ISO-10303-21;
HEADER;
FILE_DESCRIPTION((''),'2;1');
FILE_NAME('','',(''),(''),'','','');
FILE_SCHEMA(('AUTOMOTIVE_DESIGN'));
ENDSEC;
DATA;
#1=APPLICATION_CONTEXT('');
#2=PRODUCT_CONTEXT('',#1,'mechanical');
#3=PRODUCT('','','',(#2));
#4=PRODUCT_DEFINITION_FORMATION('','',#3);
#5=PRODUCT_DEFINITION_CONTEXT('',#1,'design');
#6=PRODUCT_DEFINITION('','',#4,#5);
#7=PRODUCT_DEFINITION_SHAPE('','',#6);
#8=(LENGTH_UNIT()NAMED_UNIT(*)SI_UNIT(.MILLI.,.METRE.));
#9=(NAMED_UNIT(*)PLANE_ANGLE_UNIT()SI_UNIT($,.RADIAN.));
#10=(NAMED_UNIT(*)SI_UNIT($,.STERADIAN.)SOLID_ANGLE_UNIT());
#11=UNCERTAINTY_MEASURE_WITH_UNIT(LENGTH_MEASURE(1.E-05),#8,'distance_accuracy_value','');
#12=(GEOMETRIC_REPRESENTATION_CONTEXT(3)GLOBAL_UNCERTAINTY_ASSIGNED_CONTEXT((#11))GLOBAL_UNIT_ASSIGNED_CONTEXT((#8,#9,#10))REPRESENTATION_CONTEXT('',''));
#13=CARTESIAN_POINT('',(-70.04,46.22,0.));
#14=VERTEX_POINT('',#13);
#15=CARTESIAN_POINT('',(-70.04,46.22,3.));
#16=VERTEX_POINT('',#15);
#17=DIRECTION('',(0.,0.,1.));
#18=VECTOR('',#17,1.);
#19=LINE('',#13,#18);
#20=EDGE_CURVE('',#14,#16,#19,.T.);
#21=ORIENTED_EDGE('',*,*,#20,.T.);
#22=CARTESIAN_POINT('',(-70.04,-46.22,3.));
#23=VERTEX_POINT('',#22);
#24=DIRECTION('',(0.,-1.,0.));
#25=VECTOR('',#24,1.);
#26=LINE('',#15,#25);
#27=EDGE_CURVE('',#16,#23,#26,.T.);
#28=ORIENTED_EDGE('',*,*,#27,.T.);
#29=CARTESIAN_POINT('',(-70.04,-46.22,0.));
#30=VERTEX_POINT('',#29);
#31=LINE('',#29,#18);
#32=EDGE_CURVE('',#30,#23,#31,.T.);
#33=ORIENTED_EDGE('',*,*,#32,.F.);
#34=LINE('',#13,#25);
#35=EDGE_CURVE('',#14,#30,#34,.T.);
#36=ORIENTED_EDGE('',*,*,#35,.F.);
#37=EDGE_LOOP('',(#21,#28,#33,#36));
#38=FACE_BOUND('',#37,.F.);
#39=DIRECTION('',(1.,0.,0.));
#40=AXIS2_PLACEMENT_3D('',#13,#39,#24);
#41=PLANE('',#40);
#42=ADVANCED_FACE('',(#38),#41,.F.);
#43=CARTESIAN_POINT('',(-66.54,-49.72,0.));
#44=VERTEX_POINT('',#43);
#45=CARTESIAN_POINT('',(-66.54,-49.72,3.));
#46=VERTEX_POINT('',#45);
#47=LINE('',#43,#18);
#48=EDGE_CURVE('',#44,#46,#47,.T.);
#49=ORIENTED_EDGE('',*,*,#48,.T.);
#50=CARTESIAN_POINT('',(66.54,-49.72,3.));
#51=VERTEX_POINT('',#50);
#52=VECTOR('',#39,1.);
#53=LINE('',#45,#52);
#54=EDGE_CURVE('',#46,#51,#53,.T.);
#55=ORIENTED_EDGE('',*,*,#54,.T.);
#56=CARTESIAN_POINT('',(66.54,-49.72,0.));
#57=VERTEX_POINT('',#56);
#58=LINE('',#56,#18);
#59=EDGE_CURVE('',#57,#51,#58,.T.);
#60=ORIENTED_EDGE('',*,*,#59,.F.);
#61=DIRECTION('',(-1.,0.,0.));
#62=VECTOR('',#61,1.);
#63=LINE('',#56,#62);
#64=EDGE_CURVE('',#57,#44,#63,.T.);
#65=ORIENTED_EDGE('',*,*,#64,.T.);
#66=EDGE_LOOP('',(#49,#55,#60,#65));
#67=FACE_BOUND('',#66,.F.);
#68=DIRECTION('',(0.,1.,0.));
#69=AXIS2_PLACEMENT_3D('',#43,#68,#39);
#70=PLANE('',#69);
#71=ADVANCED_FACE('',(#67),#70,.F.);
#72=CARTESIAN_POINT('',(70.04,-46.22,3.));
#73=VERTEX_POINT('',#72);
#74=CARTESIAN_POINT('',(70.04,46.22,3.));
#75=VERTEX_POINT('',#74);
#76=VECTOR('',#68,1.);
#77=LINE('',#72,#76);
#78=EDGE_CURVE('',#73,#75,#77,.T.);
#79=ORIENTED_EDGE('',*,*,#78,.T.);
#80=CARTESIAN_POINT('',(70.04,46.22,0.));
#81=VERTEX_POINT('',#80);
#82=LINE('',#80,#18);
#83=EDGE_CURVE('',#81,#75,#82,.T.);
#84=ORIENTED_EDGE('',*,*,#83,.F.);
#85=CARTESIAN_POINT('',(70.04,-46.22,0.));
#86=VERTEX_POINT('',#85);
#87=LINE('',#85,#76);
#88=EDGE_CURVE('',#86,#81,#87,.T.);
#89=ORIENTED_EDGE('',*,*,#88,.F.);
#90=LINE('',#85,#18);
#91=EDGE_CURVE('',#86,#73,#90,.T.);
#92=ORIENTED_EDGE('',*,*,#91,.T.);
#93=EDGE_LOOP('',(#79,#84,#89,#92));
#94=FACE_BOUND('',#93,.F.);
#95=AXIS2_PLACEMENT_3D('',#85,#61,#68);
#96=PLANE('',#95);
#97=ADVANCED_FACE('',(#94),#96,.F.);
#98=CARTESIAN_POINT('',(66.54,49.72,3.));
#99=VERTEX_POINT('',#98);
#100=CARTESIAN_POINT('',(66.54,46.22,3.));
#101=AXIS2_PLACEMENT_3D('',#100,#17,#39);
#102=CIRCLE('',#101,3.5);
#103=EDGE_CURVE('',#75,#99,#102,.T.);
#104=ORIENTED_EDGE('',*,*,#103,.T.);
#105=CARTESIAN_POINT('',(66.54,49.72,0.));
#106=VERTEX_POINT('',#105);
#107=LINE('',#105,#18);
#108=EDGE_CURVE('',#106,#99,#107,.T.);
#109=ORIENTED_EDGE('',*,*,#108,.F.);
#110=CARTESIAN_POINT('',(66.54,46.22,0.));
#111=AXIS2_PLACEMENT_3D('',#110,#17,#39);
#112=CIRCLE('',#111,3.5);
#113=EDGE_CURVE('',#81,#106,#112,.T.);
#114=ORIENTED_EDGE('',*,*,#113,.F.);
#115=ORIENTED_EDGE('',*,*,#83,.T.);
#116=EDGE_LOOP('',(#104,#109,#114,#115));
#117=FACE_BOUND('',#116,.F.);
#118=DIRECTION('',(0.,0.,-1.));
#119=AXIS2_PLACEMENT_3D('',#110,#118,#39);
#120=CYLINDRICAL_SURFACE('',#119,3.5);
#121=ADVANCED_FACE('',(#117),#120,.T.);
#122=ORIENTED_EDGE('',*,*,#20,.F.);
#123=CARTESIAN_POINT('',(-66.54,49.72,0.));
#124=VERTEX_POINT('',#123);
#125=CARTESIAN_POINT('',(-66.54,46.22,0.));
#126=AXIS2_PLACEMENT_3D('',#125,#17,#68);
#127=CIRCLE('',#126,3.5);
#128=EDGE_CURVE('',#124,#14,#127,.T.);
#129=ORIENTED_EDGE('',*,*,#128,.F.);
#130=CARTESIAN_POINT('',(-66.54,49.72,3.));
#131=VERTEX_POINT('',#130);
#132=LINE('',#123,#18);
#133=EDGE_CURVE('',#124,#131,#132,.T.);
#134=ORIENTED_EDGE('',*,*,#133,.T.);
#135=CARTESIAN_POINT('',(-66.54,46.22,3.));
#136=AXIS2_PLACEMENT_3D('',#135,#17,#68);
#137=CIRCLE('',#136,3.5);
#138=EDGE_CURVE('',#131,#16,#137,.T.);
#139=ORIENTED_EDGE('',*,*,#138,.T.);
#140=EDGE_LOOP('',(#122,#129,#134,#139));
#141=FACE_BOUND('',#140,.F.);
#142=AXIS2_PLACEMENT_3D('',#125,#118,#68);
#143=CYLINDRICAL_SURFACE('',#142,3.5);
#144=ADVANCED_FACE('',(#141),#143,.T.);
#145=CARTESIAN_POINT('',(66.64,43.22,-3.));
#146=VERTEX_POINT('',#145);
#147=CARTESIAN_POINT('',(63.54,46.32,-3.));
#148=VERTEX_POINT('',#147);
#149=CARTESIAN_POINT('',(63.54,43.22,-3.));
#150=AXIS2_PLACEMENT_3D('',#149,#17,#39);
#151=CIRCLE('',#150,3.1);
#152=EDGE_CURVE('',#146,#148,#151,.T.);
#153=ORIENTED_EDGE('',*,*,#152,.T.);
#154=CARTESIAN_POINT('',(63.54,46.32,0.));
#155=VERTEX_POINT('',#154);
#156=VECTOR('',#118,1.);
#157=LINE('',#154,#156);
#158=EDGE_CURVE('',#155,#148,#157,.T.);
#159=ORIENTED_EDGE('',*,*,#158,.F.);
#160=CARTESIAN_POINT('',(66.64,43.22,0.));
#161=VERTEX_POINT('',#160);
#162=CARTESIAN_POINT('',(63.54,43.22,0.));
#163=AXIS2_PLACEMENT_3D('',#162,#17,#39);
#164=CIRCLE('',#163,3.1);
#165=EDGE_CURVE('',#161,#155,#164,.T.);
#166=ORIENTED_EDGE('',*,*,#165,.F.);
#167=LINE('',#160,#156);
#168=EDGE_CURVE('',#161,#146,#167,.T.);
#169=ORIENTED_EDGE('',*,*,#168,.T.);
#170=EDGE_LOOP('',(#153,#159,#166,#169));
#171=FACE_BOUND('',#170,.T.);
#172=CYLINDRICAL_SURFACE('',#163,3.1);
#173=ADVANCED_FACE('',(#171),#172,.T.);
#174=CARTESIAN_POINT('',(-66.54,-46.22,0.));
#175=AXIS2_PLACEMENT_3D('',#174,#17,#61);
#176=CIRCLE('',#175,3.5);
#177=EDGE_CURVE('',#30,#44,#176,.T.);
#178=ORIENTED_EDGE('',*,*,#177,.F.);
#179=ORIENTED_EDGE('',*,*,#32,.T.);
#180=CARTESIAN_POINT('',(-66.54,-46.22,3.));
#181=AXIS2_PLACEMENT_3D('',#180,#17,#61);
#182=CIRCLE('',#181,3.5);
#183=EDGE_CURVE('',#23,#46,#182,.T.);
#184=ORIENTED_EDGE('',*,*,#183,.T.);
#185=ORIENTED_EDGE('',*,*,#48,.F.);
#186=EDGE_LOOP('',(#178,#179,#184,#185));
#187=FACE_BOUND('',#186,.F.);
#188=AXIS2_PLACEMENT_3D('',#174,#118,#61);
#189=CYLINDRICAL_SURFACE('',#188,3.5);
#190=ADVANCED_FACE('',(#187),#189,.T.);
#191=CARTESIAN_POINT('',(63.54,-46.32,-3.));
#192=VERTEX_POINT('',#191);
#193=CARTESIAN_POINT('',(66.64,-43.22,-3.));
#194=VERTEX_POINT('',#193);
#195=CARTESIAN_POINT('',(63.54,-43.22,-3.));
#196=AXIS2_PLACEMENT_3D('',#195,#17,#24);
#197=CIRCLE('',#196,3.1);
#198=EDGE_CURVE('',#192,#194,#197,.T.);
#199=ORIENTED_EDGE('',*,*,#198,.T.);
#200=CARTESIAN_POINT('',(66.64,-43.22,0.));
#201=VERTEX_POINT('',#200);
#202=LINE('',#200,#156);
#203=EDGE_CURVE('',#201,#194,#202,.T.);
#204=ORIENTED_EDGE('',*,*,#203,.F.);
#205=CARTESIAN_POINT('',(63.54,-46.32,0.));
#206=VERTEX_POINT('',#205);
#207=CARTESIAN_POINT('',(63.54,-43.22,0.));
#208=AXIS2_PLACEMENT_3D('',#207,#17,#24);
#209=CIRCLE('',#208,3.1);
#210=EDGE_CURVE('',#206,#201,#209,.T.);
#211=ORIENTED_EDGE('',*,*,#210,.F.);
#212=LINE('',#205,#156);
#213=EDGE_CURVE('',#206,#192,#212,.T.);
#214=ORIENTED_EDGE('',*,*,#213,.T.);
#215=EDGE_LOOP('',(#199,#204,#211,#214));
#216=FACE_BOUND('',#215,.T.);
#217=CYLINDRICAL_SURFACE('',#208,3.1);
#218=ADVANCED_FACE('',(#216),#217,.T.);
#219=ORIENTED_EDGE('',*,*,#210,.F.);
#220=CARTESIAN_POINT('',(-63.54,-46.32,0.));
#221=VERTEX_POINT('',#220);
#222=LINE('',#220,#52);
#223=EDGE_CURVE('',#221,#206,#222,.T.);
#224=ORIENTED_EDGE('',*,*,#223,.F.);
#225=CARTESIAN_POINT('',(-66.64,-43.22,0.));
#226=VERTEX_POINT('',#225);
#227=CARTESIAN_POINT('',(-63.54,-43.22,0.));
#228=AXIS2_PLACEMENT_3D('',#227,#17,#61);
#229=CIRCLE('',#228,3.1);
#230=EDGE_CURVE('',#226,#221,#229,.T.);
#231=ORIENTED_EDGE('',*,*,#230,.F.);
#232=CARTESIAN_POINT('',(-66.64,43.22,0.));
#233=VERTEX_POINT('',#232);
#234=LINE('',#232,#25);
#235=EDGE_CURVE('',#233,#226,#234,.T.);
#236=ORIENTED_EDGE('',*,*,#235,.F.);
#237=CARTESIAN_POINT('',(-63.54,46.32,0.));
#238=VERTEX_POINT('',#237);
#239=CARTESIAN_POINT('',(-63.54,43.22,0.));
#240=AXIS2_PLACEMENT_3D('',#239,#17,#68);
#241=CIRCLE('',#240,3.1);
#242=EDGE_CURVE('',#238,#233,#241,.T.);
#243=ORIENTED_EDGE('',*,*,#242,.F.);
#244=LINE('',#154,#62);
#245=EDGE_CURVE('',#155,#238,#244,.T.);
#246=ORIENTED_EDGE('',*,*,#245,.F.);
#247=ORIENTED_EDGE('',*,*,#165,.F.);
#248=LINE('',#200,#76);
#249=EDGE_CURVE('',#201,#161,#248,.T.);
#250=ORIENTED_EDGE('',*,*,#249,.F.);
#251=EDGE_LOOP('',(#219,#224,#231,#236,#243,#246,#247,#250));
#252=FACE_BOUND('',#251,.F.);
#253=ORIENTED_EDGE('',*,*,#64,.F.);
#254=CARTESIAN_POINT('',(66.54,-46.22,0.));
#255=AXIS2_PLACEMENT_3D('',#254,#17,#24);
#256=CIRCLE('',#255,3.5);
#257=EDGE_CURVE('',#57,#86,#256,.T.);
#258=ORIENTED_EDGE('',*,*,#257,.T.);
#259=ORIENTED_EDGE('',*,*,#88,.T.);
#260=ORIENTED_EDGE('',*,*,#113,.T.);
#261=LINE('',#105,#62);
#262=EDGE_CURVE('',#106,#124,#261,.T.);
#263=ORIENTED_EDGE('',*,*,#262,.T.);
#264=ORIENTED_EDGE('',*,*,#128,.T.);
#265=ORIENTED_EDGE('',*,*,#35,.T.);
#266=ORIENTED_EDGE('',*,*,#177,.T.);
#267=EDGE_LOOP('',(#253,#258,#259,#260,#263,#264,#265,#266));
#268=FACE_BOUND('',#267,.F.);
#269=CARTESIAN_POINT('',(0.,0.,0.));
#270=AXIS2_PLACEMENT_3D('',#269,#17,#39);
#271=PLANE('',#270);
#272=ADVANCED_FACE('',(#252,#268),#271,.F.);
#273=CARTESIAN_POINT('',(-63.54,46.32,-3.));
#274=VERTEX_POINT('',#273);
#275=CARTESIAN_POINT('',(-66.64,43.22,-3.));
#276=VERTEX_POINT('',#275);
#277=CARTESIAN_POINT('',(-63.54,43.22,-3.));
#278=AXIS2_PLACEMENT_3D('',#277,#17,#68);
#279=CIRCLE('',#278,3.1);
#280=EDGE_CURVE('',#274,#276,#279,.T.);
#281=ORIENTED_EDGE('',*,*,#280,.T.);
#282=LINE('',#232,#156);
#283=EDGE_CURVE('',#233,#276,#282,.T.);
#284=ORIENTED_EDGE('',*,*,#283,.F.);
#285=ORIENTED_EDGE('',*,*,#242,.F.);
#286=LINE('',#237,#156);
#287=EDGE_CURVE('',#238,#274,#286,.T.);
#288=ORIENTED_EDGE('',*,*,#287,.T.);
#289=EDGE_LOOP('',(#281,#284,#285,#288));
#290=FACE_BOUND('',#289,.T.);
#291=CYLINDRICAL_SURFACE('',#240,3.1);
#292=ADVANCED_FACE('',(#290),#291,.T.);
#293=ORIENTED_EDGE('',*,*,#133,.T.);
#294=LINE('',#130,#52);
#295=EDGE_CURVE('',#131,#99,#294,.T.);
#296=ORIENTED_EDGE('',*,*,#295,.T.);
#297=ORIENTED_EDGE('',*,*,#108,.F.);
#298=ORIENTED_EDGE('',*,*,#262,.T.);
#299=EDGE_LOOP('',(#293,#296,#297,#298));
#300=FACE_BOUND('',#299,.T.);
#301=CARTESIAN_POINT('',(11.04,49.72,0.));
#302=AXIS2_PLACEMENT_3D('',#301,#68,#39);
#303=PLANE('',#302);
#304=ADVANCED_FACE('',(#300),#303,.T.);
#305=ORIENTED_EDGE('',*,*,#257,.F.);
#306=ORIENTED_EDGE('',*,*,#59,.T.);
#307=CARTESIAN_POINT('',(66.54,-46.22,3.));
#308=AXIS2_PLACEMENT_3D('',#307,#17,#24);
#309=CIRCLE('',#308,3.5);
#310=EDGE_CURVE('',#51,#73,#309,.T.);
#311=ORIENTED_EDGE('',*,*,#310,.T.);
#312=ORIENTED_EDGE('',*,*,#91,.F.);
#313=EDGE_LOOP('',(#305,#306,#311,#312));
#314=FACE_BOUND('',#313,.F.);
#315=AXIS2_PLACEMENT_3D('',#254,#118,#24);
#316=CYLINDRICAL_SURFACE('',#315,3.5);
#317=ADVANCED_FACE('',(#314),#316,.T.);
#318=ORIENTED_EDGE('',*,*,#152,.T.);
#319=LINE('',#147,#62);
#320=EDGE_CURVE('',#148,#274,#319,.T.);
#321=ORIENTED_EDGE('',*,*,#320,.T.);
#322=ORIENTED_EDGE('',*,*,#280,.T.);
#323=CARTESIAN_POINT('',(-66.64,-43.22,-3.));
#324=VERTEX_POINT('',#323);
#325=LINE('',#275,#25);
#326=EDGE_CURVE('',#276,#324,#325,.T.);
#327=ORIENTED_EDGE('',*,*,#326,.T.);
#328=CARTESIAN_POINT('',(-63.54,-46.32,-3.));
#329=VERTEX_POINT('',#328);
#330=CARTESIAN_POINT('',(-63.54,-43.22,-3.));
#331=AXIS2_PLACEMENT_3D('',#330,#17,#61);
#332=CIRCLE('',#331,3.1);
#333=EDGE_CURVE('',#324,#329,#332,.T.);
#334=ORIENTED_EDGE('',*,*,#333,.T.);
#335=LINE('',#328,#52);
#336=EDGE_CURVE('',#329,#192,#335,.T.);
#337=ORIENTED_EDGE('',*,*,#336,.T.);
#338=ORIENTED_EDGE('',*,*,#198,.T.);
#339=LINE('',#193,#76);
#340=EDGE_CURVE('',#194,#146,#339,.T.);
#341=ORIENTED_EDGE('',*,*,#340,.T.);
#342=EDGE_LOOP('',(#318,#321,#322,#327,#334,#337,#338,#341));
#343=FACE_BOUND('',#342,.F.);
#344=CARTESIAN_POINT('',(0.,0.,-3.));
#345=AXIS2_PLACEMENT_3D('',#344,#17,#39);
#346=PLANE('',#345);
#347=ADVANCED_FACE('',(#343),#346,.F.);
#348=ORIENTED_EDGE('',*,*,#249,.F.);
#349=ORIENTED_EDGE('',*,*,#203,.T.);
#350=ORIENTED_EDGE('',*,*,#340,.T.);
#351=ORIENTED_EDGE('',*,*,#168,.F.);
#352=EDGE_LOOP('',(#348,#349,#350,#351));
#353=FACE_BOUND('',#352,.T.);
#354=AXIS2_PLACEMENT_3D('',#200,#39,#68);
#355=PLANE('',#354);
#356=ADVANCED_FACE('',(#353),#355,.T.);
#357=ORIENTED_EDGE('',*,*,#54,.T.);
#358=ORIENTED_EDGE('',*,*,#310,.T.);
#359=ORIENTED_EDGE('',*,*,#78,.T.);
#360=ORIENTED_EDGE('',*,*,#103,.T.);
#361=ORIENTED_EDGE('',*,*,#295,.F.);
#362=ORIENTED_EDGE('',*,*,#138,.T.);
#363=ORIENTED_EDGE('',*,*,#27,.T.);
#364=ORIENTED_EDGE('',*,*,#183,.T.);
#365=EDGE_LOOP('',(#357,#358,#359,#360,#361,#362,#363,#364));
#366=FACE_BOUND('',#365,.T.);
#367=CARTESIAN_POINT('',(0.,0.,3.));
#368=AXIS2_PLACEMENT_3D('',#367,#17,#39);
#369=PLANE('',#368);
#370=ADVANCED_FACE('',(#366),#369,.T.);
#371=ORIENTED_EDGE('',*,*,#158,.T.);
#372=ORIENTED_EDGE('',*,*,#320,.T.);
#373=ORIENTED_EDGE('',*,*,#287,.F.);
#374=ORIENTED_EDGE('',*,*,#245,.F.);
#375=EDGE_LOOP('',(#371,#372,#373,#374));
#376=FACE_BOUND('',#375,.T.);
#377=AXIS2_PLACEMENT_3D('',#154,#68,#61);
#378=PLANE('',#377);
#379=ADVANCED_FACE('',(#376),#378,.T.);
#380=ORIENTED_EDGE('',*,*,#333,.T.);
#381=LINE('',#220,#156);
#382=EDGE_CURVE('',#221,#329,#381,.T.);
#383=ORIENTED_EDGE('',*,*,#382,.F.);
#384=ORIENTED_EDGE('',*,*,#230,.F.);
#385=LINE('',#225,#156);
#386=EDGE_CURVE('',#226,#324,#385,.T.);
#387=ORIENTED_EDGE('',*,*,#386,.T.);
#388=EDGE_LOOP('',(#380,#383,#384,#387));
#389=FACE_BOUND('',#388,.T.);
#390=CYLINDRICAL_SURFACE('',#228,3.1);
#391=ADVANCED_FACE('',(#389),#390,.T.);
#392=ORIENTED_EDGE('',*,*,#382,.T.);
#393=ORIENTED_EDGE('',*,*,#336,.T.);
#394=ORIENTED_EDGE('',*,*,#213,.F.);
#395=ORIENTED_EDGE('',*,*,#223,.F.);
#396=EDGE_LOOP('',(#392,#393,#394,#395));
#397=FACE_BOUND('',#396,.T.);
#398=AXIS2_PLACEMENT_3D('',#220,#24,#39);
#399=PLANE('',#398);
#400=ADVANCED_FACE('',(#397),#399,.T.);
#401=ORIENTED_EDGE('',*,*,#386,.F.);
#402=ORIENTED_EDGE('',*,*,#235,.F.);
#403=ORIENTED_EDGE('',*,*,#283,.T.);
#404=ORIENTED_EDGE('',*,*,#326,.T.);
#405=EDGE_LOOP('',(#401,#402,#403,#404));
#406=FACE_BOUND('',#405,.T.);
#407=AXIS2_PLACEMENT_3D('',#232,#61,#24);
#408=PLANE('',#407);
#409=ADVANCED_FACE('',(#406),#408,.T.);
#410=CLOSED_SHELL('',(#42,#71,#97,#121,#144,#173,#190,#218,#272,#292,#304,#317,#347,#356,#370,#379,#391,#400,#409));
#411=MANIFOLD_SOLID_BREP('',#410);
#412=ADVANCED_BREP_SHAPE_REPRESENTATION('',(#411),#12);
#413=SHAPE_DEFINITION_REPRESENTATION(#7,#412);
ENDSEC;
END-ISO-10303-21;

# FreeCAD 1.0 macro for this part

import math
import FreeCAD as App
import Part
import Sketcher
from FreeCAD import Vector

doc = App.newDocument("Part")
body = doc.addObject("PartDesign::Body", "Body")

# Sketch on XY plane
sketch1 = doc.addObject("Sketcher::SketchObject", "Sketch")
body.addObject(sketch1)
sketch1.AttachmentSupport = (doc.XY_Plane, [""])
sketch1.MapMode = "FlatFace"
sketch1.addGeometry(Part.LineSegment(Vector(63.5, 46.3, 0), Vector(-63.5, 46.3, 0)), False)
sketch1.addGeometry(Part.ArcOfCircle(Part.Circle(Vector(-63.5, 43.2, 0), Vector(0, 0, 1), 3.1), math.radians(90), math.radians(180)), False)
sketch1.addGeometry(Part.LineSegment(Vector(-66.6, 43.2, 0), Vector(-66.6, -43.2, 0)), False)
sketch1.addGeometry(Part.ArcOfCircle(Part.Circle(Vector(-63.5, -43.2, 0), Vector(0, 0, 1), 3.1), math.radians(180), math.radians(270)), False)
sketch1.addGeometry(Part.LineSegment(Vector(-63.5, -46.3, 0), Vector(63.5, -46.3, 0)), False)
sketch1.addGeometry(Part.ArcOfCircle(Part.Circle(Vector(63.5, -43.2, 0), Vector(0, 0, 1), 3.1), math.radians(-90), math.radians(0)), False)
sketch1.addGeometry(Part.LineSegment(Vector(66.6, -43.2, 0), Vector(66.6, 43.2, 0)), False)
sketch1.addGeometry(Part.ArcOfCircle(Part.Circle(Vector(63.5, 43.2, 0), Vector(0, 0, 1), 3.1), math.radians(0), math.radians(90)), False)
sketch1.addConstraint(Sketcher.Constraint("Tangent", 0, 2, 1, 1))
sketch1.addConstraint(Sketcher.Constraint("Tangent", 1, 2, 2, 1))
sketch1.addConstraint(Sketcher.Constraint("Tangent", 2, 2, 3, 1))
sketch1.addConstraint(Sketcher.Constraint("Tangent", 3, 2, 4, 1))
sketch1.addConstraint(Sketcher.Constraint("Tangent", 4, 2, 5, 1))
sketch1.addConstraint(Sketcher.Constraint("Tangent", 5, 2, 6, 1))
sketch1.addConstraint(Sketcher.Constraint("Tangent", 6, 2, 7, 1))
sketch1.addConstraint(Sketcher.Constraint("Tangent", 7, 2, 0, 1))
sketch1.addConstraint(Sketcher.Constraint("Horizontal", 0))
sketch1.addConstraint(Sketcher.Constraint("Vertical", 2))
sketch1.addConstraint(Sketcher.Constraint("Horizontal", 4))
sketch1.addConstraint(Sketcher.Constraint("Vertical", 6))
sketch1.addConstraint(Sketcher.Constraint("Equal", 1, 3))
sketch1.addConstraint(Sketcher.Constraint("Equal", 3, 5))
sketch1.addConstraint(Sketcher.Constraint("Equal", 5, 7))
sketch1.addConstraint(Sketcher.Constraint("Symmetric", 1, 3, 5, 3, -1, 1))
sketch1.addConstraint(Sketcher.Constraint("Radius", 1, 3.1))
sketch1.addConstraint(Sketcher.Constraint("DistanceX", 0, 2, 0, 1, 127.08))
sketch1.addConstraint(Sketcher.Constraint("DistanceY", 2, 2, 2, 1, 86.44))
pad1 = doc.addObject("PartDesign::Pad", "Pad")
body.addObject(pad1)
pad1.Profile = sketch1
pad1.Length = 3
pad1.Reversed = True

# Sketch on XY plane
sketch2 = doc.addObject("Sketcher::SketchObject", "Sketch001")
body.addObject(sketch2)
sketch2.AttachmentSupport = (doc.XY_Plane, [""])
sketch2.MapMode = "FlatFace"
sketch2.addGeometry(Part.LineSegment(Vector(66.5, 49.7, 0), Vector(-66.5, 49.7, 0)), False)
sketch2.addGeometry(Part.ArcOfCircle(Part.Circle(Vector(-66.5, 46.2, 0), Vector(0, 0, 1), 3.5), math.radians(90), math.radians(180)), False)
sketch2.addGeometry(Part.LineSegment(Vector(-70, 46.2, 0), Vector(-70, -46.2, 0)), False)
sketch2.addGeometry(Part.ArcOfCircle(Part.Circle(Vector(-66.5, -46.2, 0), Vector(0, 0, 1), 3.5), math.radians(180), math.radians(270)), False)
sketch2.addGeometry(Part.LineSegment(Vector(-66.5, -49.7, 0), Vector(66.5, -49.7, 0)), False)
sketch2.addGeometry(Part.ArcOfCircle(Part.Circle(Vector(66.5, -46.2, 0), Vector(0, 0, 1), 3.5), math.radians(-90), math.radians(0)), False)
sketch2.addGeometry(Part.LineSegment(Vector(70, -46.2, 0), Vector(70, 46.2, 0)), False)
sketch2.addGeometry(Part.ArcOfCircle(Part.Circle(Vector(66.5, 46.2, 0), Vector(0, 0, 1), 3.5), math.radians(0), math.radians(90)), False)
sketch2.addConstraint(Sketcher.Constraint("Tangent", 0, 2, 1, 1))
sketch2.addConstraint(Sketcher.Constraint("Tangent", 1, 2, 2, 1))
sketch2.addConstraint(Sketcher.Constraint("Tangent", 2, 2, 3, 1))
sketch2.addConstraint(Sketcher.Constraint("Tangent", 3, 2, 4, 1))
sketch2.addConstraint(Sketcher.Constraint("Tangent", 4, 2, 5, 1))
sketch2.addConstraint(Sketcher.Constraint("Tangent", 5, 2, 6, 1))
sketch2.addConstraint(Sketcher.Constraint("Tangent", 6, 2, 7, 1))
sketch2.addConstraint(Sketcher.Constraint("Tangent", 7, 2, 0, 1))
sketch2.addConstraint(Sketcher.Constraint("Horizontal", 0))
sketch2.addConstraint(Sketcher.Constraint("Vertical", 2))
sketch2.addConstraint(Sketcher.Constraint("Horizontal", 4))
sketch2.addConstraint(Sketcher.Constraint("Vertical", 6))
sketch2.addConstraint(Sketcher.Constraint("Equal", 1, 3))
sketch2.addConstraint(Sketcher.Constraint("Equal", 3, 5))
sketch2.addConstraint(Sketcher.Constraint("Equal", 5, 7))
sketch2.addConstraint(Sketcher.Constraint("Symmetric", 1, 3, 5, 3, -1, 1))
sketch2.addConstraint(Sketcher.Constraint("Radius", 1, 3.5))
sketch2.addConstraint(Sketcher.Constraint("DistanceX", 0, 2, 0, 1, 133.08))
sketch2.addConstraint(Sketcher.Constraint("DistanceY", 2, 2, 2, 1, 92.44))
pad2 = doc.addObject("PartDesign::Pad", "Pad001")
body.addObject(pad2)
pad2.Profile = sketch2
pad2.Length = 3

doc.recompute()
